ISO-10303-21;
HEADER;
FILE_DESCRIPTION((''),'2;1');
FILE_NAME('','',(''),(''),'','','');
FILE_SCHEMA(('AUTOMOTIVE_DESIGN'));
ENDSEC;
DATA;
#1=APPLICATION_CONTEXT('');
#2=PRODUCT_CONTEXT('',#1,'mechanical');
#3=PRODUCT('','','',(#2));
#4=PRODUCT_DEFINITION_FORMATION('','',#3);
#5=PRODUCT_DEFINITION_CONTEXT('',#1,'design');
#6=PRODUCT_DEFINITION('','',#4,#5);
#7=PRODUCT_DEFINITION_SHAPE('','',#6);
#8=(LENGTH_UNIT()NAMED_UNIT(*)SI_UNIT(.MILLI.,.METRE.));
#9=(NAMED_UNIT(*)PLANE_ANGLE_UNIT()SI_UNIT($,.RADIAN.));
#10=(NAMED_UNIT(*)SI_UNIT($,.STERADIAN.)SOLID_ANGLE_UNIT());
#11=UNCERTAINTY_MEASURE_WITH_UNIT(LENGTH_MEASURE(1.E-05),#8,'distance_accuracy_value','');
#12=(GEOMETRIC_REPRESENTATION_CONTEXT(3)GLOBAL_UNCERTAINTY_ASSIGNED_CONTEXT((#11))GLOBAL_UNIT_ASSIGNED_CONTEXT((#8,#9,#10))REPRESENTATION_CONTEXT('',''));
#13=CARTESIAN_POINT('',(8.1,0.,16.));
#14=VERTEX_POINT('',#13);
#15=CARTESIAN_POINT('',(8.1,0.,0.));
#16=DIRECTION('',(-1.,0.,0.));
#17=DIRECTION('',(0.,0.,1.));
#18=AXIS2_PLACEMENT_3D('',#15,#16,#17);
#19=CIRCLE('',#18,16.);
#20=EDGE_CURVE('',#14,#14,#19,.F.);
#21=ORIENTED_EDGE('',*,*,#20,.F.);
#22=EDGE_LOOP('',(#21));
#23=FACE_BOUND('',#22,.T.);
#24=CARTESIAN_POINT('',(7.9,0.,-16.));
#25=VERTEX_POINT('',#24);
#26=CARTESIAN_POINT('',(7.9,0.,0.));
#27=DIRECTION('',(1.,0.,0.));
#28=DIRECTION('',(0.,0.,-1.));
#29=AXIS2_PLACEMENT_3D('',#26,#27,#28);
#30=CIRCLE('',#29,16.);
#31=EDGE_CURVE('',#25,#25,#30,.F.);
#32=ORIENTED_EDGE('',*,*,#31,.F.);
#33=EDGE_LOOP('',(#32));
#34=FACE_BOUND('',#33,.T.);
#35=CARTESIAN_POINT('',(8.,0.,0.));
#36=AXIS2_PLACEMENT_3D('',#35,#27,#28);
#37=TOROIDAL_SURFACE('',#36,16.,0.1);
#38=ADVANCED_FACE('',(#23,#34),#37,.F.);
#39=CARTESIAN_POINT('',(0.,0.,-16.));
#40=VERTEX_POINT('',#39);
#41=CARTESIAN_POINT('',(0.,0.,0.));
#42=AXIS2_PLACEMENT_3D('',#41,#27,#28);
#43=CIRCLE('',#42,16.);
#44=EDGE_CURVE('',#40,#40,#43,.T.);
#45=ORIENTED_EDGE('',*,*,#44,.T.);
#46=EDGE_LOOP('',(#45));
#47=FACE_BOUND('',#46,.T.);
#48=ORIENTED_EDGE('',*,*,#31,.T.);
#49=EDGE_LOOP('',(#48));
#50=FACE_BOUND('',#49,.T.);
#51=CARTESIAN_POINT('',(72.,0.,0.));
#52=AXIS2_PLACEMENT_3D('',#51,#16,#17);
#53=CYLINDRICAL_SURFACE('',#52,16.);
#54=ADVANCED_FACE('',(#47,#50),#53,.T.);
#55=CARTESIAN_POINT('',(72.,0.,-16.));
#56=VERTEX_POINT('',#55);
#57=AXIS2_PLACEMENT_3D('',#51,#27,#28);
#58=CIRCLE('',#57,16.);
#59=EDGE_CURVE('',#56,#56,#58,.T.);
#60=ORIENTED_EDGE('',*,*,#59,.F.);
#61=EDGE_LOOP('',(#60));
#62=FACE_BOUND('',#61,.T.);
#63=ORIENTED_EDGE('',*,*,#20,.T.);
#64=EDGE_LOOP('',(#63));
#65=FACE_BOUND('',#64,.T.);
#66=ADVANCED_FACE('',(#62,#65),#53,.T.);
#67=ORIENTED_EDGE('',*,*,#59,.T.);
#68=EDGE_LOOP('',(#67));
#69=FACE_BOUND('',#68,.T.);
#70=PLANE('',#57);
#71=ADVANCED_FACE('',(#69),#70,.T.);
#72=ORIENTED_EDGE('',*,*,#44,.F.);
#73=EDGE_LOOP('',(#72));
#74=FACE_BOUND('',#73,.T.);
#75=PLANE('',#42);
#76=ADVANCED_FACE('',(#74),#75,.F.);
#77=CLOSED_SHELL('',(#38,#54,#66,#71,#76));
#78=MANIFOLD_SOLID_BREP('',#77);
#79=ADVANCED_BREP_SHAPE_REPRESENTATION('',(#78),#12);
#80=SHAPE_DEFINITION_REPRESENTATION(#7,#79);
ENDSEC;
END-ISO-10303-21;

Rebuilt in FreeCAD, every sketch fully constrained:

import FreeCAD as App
import Part
import Sketcher

V = App.Vector
Q = App.Units.Quantity

doc = App.newDocument("Part")
body = doc.addObject("PartDesign::Body", "Body")

# Sketch on YZ plane
sketch1 = body.newObject("Sketcher::SketchObject", "Sketch")
sketch1.AttachmentSupport = (doc.getObject("YZ_Plane"), [""])
sketch1.MapMode = "FlatFace"
sketch1.addGeometry(Part.Circle(V(0, 0, 0), V(0, 0, 1), 16), False)
sketch1.addConstraint(Sketcher.Constraint("Coincident", 0, 3, -1, 1))
sketch1.addConstraint(Sketcher.Constraint("Diameter", 0, Q("32 mm")))
pad1 = body.newObject("PartDesign::Pad", "Pad")
pad1.Profile = sketch1
pad1.Length = 72

# Sketch on XY plane
sketch2 = body.newObject("Sketcher::SketchObject", "Sketch001")
sketch2.AttachmentSupport = (doc.getObject("XY_Plane"), [""])
sketch2.MapMode = "FlatFace"
sketch2.addGeometry(Part.Circle(V(8, 16, 0), V(0, 0, 1), 0.1), False)
sketch2.addConstraint(Sketcher.Constraint("Diameter", 0, Q("0.2 mm")))
sketch2.addConstraint(Sketcher.Constraint("DistanceX", -1, 1, 0, 3, Q("8 mm")))
sketch2.addConstraint(Sketcher.Constraint("DistanceY", -1, 1, 0, 3, Q("16 mm")))
groove = body.newObject("PartDesign::Groove", "Groove")
groove.Profile = sketch2
groove.ReferenceAxis = (sketch2, ["H_Axis"])
groove.Angle = 360

doc.recompute()
